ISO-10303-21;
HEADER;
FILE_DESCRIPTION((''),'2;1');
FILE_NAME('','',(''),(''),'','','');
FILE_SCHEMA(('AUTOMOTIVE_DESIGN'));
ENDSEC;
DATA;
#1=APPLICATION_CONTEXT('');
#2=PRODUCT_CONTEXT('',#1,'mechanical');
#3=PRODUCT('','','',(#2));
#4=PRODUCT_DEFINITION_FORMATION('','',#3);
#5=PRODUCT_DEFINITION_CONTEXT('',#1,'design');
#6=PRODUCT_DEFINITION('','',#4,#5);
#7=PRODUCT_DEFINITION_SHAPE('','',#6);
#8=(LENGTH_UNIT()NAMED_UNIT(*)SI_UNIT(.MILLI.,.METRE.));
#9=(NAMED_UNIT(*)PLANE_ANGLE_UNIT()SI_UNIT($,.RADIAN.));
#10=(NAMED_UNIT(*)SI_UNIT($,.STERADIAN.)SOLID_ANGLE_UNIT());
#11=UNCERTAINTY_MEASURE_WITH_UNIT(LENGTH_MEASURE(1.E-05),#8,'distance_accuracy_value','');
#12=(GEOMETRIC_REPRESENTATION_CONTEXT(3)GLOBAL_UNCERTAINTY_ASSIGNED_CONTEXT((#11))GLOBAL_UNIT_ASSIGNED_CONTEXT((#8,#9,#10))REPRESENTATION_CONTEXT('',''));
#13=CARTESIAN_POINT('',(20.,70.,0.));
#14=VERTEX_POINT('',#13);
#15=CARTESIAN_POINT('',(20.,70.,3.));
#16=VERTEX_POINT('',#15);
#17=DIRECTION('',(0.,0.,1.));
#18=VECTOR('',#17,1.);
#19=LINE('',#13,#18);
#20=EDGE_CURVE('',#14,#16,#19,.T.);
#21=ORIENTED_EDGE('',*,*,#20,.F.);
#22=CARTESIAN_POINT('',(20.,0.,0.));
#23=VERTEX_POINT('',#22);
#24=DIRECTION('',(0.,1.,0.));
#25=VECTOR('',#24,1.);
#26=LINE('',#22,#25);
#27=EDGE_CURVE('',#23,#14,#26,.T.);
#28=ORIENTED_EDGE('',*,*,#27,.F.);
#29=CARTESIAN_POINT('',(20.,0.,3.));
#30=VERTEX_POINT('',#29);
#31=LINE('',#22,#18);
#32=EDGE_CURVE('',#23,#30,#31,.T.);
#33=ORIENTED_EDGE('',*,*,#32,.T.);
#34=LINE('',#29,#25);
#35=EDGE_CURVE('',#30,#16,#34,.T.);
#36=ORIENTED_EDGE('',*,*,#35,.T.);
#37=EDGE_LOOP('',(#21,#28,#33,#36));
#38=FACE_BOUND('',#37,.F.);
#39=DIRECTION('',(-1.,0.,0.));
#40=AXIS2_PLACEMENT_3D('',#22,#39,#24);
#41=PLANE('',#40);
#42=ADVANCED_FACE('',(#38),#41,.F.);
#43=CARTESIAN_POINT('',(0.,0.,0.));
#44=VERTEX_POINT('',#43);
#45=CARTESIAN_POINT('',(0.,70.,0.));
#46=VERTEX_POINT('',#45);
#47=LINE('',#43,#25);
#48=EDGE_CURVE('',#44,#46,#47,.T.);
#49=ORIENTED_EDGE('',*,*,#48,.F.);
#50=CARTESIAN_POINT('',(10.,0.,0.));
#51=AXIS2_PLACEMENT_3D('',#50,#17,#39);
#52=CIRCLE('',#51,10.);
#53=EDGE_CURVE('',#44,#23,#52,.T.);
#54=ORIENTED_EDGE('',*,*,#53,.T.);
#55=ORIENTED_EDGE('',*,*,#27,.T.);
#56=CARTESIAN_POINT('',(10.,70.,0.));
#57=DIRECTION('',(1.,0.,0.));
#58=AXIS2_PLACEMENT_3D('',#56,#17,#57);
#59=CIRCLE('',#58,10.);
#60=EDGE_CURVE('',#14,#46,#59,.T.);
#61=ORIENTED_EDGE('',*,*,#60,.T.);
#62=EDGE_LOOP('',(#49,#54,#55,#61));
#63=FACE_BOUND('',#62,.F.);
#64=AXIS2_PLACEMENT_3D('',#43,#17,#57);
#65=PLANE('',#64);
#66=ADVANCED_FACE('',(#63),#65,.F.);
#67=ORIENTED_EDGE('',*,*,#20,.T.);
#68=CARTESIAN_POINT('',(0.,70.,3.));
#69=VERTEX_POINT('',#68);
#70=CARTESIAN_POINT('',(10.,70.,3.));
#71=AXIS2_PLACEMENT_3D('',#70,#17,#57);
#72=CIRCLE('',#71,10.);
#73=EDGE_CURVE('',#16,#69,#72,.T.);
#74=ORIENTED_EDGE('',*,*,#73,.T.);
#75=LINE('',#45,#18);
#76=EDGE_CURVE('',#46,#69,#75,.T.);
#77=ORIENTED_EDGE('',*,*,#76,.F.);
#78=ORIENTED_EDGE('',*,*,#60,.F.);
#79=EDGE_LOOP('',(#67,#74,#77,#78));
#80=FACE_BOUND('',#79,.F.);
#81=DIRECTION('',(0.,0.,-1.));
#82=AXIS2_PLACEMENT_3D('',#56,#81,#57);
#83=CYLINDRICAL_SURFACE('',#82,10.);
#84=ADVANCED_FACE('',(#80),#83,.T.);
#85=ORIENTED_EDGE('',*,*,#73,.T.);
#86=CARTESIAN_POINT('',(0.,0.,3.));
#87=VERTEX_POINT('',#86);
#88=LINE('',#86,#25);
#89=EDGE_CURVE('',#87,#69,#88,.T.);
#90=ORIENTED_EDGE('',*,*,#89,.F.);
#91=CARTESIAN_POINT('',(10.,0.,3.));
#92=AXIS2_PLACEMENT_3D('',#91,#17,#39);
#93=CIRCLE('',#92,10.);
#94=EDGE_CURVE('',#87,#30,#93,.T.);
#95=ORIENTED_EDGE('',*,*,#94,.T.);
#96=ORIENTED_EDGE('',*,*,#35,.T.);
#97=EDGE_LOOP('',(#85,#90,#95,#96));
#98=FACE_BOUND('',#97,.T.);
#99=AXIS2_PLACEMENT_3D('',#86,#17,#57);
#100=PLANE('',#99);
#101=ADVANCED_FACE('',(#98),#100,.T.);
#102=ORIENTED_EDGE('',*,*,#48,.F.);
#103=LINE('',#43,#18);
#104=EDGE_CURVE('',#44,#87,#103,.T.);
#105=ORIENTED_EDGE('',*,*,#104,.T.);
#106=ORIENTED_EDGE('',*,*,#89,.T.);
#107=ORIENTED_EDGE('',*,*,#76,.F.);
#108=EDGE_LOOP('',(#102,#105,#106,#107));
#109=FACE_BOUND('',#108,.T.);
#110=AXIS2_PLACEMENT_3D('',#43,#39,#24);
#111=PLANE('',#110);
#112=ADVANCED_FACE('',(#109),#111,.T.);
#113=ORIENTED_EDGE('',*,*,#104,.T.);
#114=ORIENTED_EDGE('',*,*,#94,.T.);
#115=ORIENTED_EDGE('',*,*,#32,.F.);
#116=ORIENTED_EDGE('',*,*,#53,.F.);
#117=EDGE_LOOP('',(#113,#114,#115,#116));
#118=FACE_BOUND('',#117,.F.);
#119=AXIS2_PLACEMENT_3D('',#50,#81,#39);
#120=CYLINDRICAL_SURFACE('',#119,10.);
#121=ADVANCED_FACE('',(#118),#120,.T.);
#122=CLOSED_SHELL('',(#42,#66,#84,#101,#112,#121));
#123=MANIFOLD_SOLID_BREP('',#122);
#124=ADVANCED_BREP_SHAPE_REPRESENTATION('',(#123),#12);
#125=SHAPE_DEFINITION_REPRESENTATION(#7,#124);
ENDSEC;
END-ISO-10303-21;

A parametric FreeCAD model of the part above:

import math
import FreeCAD as App
import Part
import Sketcher
from FreeCAD import Vector

doc = App.newDocument("Part")
body = doc.addObject("PartDesign::Body", "Body")

sketch1 = body.newObject("Sketcher::SketchObject", "Sketch")
sketch1.AttachmentSupport = (doc.getObject("XY_Plane"), [""])
sketch1.MapMode = "FlatFace"
sketch1.addGeometry([
    Part.LineSegment(Vector(0, 70, 0), Vector(0, 0, 0)),
    Part.ArcOfCircle(Part.Circle(Vector(10, 0, 0), Vector(0, 0, 1), 10), math.radians(180), math.radians(360)),
    Part.LineSegment(Vector(20, 0, 0), Vector(20, 70, 0)),
    Part.ArcOfCircle(Part.Circle(Vector(10, 70, 0), Vector(0, 0, 1), 10), math.radians(0), math.radians(180)),
], False)
sketch1.addConstraint([
    Sketcher.Constraint("Tangent", 0, 2, 1, 1),
    Sketcher.Constraint("Tangent", 1, 2, 2, 1),
    Sketcher.Constraint("Tangent", 2, 2, 3, 1),
    Sketcher.Constraint("Tangent", 3, 2, 0, 1),
    Sketcher.Constraint("Vertical", 0),
    Sketcher.Constraint("Vertical", 2),
    Sketcher.Constraint("Coincident", 0, 2, -1, 1),
    Sketcher.Constraint("DistanceY", 0, 2, 0, 1, 70.0),
    Sketcher.Constraint("Radius", 1, 10.0),
])
pad1 = body.newObject("PartDesign::Pad", "Pad")
pad1.Profile = sketch1
pad1.Length = 3

doc.recompute()
